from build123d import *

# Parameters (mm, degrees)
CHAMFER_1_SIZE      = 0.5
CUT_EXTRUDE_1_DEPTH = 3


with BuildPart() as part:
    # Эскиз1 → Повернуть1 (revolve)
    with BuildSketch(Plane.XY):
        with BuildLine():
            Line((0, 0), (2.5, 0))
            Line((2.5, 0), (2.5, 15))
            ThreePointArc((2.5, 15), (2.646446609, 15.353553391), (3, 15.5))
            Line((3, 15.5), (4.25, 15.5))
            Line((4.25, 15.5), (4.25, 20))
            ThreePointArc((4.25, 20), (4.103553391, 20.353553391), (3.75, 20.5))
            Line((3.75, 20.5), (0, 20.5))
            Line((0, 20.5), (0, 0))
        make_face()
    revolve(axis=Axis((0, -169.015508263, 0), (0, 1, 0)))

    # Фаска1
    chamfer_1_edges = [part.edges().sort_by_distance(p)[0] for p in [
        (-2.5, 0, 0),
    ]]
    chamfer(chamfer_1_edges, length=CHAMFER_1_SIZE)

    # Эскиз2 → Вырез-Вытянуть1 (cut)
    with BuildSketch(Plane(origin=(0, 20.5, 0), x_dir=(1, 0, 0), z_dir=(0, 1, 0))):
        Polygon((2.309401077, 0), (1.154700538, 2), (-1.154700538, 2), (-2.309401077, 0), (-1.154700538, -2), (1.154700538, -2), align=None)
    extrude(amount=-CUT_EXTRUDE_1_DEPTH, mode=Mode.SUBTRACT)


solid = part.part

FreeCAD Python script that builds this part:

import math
import FreeCAD as App
import Part
import Sketcher
from FreeCAD import Vector
Q = App.Units.Quantity


def edges_at(feature, points):
    """Names of the edges that pass closest to the given points."""
    edges = feature.Shape.Edges
    near = lambda p: min(range(len(edges)), key=lambda i: edges[i].distToShape(Part.Vertex(*p))[0])
    return sorted({f"Edge{near(p) + 1}" for p in points})


def add_polygon(sketch, points):
    """Adds a closed chain of lines whose ends are joined by coincident constraints."""
    first, n = sketch.GeometryCount, len(points)
    for a, b in zip(points, points[1:] + points[:1]):
        sketch.addGeometry(Part.LineSegment(App.Vector(*a, 0), App.Vector(*b, 0)), False)
    for i in range(n):
        sketch.addConstraint(Sketcher.Constraint("Coincident", first + i, 2, first + (i + 1) % n, 1))

doc = App.newDocument("Part")
body = doc.addObject("PartDesign::Body", "Body")

sketch1 = doc.addObject("Sketcher::SketchObject", "Sketch")
body.addObject(sketch1)
sketch1.AttachmentSupport = (doc.XY_Plane, [""])
sketch1.MapMode = "FlatFace"
sketch1.addGeometry([
    Part.LineSegment(Vector(0, 0, 0), Vector(2.5, 0, 0)),
    Part.LineSegment(Vector(2.5, 0, 0), Vector(2.5, 15, 0)),
    Part.ArcOfCircle(Part.Circle(Vector(3, 15, 0), Vector(0, 0, 1), 0.5), math.radians(90), math.radians(180)),
    Part.LineSegment(Vector(3, 15.5, 0), Vector(4.25, 15.5, 0)),
    Part.LineSegment(Vector(4.25, 15.5, 0), Vector(4.25, 20, 0)),
    Part.ArcOfCircle(Part.Circle(Vector(3.75, 20, 0), Vector(0, 0, 1), 0.5), math.radians(0), math.radians(90)),
    Part.LineSegment(Vector(3.75, 20.5, 0), Vector(0, 20.5, 0)),
    Part.LineSegment(Vector(0, 20.5, 0), Vector(0, 0, 0)),
], False)
sketch1.addConstraint([
    Sketcher.Constraint("Coincident", 0, 2, 1, 1),
    Sketcher.Constraint("Tangent", 1, 2, 2, 2),
    Sketcher.Constraint("Tangent", 2, 1, 3, 1),
    Sketcher.Constraint("Coincident", 3, 2, 4, 1),
    Sketcher.Constraint("Tangent", 4, 2, 5, 1),
    Sketcher.Constraint("Tangent", 5, 2, 6, 1),
    Sketcher.Constraint("Coincident", 6, 2, 7, 1),
    Sketcher.Constraint("Coincident", 7, 2, 0, 1),
    Sketcher.Constraint("Horizontal", 0),
    Sketcher.Constraint("Vertical", 1),
    Sketcher.Constraint("Horizontal", 3),
    Sketcher.Constraint("Vertical", 4),
    Sketcher.Constraint("Horizontal", 6),
    Sketcher.Constraint("Vertical", 7),
    Sketcher.Constraint("Coincident", 7, 2, -1, 1),
    Sketcher.Constraint("Equal", 2, 5),
    Sketcher.Constraint("Radius", 2, Q("0.5 mm")),
    Sketcher.Constraint("DistanceY", 1, 1, 1, 2, Q("15 mm")),
    Sketcher.Constraint("DistanceX", 0, 1, 0, 2, Q("2.5 mm")),
    Sketcher.Constraint("DistanceY", 4, 1, 4, 2, Q("4.5 mm")),
    Sketcher.Constraint("DistanceX", 3, 1, 3, 2, Q("1.25 mm")),
])
revolution = doc.addObject("PartDesign::Revolution", "Revolution")
body.addObject(revolution)
revolution.Profile = sketch1
revolution.ReferenceAxis = (sketch1, ["V_Axis"])
revolution.Angle = 360
doc.recompute()

chamfer = doc.addObject("PartDesign::Chamfer", "Chamfer")
body.addObject(chamfer)
chamfer.Base = (revolution, edges_at(revolution, [(-2.5, 0, 0)]))
chamfer.Size = 0.5

sketch2 = doc.addObject("Sketcher::SketchObject", "Sketch001")
body.addObject(sketch2)
sketch2.AttachmentSupport = (doc.XZ_Plane, [""])
sketch2.MapMode = "FlatFace"
sketch2.AttachmentOffset = App.Placement(Vector(0, 0, -20.5), App.Rotation())
add_polygon(sketch2, [(2.309401, 0), (1.154701, -2), (-1.154701, -2), (-2.309401, 0), (-1.154701, 2), (1.154701, 2)])
sketch2.addConstraint([
    Sketcher.Constraint("Horizontal", 1),
    Sketcher.Constraint("Horizontal", 4),
    Sketcher.Constraint("Symmetric", 0, 2, 3, 2, -1, 1),
    Sketcher.Constraint("Symmetric", 2, 2, 5, 2, -1, 1),
    Sketcher.Constraint("PointOnObject", 2, 2, -1),
    Sketcher.Constraint("Parallel", 2, 5),
    Sketcher.Constraint("Vertical", 1, 2, 3, 2),
    Sketcher.Constraint("Angle", 0, Q("-120 deg")),
    Sketcher.Constraint("DistanceY", 0, 2, -1, 1, Q("2 mm")),
    Sketcher.Constraint("DistanceX", 1, 2, 1, 1, Q("2.309401 mm")),
])
pocket1 = doc.addObject("PartDesign::Pocket", "Pocket")
body.addObject(pocket1)
pocket1.Profile = sketch2
pocket1.Length = 3
pocket1.Reversed = True

doc.recompute()
